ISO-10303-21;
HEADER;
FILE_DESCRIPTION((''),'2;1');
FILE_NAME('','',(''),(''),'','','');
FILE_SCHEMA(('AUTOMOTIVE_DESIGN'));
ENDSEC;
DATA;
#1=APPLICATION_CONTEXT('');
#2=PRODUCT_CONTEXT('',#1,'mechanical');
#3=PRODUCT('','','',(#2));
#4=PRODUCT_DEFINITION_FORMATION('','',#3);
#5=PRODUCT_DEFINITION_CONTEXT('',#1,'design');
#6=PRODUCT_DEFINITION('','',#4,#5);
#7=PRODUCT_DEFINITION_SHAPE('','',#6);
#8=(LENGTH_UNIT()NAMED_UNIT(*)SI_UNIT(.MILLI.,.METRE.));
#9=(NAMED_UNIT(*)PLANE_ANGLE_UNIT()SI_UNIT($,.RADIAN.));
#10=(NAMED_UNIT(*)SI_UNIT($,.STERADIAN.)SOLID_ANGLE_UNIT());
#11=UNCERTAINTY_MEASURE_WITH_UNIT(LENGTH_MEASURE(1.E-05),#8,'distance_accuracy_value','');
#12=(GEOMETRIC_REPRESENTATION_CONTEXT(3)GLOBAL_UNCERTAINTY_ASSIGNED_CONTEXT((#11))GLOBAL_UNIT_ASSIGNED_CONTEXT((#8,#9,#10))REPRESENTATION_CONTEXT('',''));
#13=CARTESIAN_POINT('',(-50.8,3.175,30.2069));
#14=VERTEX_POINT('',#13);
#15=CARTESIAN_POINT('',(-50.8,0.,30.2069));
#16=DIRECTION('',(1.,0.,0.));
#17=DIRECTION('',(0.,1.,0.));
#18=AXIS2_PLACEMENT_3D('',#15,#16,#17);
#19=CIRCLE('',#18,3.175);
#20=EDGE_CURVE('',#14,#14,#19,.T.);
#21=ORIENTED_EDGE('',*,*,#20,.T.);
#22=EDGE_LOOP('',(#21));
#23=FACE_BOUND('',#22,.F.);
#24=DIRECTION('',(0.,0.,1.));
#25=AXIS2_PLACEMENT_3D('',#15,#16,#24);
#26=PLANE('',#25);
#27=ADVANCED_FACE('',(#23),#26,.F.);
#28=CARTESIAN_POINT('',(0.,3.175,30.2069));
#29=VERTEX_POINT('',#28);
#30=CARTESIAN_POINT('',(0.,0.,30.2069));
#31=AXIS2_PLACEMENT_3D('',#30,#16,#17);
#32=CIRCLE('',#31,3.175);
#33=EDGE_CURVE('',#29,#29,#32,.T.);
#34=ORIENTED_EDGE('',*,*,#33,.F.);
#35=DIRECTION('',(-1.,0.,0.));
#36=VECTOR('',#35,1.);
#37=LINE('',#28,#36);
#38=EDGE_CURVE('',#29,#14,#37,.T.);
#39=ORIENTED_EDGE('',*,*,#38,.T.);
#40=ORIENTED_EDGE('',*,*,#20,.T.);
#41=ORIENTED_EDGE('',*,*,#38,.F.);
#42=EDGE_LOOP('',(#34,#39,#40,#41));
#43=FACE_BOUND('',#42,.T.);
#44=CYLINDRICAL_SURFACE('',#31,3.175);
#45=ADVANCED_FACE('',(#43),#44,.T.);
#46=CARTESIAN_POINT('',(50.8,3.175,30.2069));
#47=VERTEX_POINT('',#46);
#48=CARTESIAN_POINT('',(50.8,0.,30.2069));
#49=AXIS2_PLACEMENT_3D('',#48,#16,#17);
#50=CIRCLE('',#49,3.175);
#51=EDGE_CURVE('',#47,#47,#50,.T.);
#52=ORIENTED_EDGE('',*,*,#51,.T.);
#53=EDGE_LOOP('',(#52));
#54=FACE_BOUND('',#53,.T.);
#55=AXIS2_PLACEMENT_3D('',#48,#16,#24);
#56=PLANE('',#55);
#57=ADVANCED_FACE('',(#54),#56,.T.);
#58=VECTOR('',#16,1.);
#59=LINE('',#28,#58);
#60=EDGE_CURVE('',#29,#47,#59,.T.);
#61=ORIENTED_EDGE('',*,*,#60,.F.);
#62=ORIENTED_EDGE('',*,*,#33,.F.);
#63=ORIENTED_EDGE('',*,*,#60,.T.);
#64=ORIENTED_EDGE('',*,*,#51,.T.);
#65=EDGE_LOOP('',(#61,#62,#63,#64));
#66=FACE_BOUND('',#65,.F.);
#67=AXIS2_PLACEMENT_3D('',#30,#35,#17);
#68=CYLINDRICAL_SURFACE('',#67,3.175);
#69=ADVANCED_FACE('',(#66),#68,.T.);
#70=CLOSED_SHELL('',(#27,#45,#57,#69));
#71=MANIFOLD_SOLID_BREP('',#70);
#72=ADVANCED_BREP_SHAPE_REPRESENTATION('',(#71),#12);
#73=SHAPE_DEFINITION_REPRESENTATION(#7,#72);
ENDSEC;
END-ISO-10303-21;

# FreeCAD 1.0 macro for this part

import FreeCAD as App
import Part
import Sketcher

V = App.Vector
Q = App.Units.Quantity

doc = App.newDocument("Part")
params = doc.addObject("Spreadsheet::Sheet", "Params")
for row, (alias, value) in enumerate([
    ("sketch1_diameter", "0.25 in"),
    ("pad1_length", "4 in"),
], start=1):
    params.set(f"A{row}", alias)
    params.set(f"B{row}", "=" + value)
    params.setAlias(f"B{row}", alias)

body = doc.addObject("PartDesign::Body", "Body")

sketch1 = body.newObject("Sketcher::SketchObject", "Sketch")
sketch1.AttachmentSupport = (doc.getObject("YZ_Plane"), [""])
sketch1.MapMode = "FlatFace"
sketch1.addGeometry(Part.Circle(V(0, 30.2, 0), V(0, 0, 1), 3.2), False)
sketch1.addConstraint([
    Sketcher.Constraint("PointOnObject", 0, 3, -2),
    Sketcher.Constraint("Diameter", 0, Q("0.25 in")),
    Sketcher.Constraint("DistanceY", -1, 1, 0, 3, 30.207),
])
sketch1.setExpression("Constraints[1]", "Params.sketch1_diameter")
pad1 = body.newObject("PartDesign::Pad", "Pad")
pad1.Profile = sketch1
pad1.setExpression("Length", "Params.pad1_length")
pad1.Midplane = True

doc.recompute()
